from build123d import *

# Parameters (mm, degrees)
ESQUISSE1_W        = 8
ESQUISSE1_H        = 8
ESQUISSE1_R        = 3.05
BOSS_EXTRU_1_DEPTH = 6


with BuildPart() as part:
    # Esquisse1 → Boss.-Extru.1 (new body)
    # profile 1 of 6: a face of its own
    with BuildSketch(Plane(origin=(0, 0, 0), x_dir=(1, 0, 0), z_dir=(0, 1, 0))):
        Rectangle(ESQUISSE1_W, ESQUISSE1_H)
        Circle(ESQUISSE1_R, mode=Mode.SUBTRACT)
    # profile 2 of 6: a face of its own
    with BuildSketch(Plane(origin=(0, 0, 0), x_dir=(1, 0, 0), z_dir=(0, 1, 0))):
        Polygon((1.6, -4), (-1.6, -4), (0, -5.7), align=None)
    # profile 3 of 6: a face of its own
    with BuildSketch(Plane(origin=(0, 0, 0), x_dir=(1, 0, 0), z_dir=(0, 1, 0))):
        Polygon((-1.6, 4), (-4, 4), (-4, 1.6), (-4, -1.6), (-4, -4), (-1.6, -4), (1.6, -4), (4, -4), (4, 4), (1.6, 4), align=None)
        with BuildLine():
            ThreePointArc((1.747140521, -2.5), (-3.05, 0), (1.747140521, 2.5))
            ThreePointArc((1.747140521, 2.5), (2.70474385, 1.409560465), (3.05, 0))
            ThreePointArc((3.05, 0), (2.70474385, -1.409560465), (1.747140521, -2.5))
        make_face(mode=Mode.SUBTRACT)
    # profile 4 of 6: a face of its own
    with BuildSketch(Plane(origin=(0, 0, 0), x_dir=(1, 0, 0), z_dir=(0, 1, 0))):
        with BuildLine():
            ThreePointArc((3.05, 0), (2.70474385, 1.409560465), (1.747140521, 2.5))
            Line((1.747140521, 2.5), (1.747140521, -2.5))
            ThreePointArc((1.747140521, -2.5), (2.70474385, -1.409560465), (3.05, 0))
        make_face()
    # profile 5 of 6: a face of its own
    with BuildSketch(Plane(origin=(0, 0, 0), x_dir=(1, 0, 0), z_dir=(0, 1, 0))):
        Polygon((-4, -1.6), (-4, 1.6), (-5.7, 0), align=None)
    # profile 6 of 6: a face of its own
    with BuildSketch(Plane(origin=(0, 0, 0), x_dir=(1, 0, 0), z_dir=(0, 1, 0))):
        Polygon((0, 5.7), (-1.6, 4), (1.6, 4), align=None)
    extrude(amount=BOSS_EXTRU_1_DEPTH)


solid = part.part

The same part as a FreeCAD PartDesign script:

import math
import FreeCAD as App
import Part
import Sketcher
from FreeCAD import Vector

doc = App.newDocument("Part")
body = doc.addObject("PartDesign::Body", "Body")

# Sketch on XZ plane
sketch1 = doc.addObject("Sketcher::SketchObject", "Sketch")
body.addObject(sketch1)
sketch1.AttachmentSupport = (doc.XZ_Plane, [""])
sketch1.MapMode = "FlatFace"
sketch1.addGeometry(Part.LineSegment(Vector(-4, 1.6, 0), Vector(-4, 4, 0)), False)
sketch1.addGeometry(Part.LineSegment(Vector(-4, 4, 0), Vector(-1.6, 4, 0)), False)
sketch1.addGeometry(Part.LineSegment(Vector(-1.6, 4, 0), Vector(0, 5.7, 0)), False)
sketch1.addGeometry(Part.LineSegment(Vector(0, 5.7, 0), Vector(1.6, 4, 0)), False)
sketch1.addGeometry(Part.LineSegment(Vector(1.6, 4, 0), Vector(4, 4, 0)), False)
sketch1.addGeometry(Part.LineSegment(Vector(4, 4, 0), Vector(4, -4, 0)), False)
sketch1.addGeometry(Part.LineSegment(Vector(4, -4, 0), Vector(1.6, -4, 0)), False)
sketch1.addGeometry(Part.LineSegment(Vector(1.6, -4, 0), Vector(0, -5.7, 0)), False)
sketch1.addGeometry(Part.LineSegment(Vector(0, -5.7, 0), Vector(-1.6, -4, 0)), False)
sketch1.addGeometry(Part.LineSegment(Vector(-1.6, -4, 0), Vector(-4, -4, 0)), False)
sketch1.addGeometry(Part.LineSegment(Vector(-4, -4, 0), Vector(-4, -1.6, 0)), False)
sketch1.addGeometry(Part.LineSegment(Vector(-4, -1.6, 0), Vector(-5.7, 0, 0)), False)
sketch1.addGeometry(Part.LineSegment(Vector(-5.7, 0, 0), Vector(-4, 1.6, 0)), False)
sketch1.addGeometry(Part.ArcOfCircle(Part.Circle(Vector(0, 0, 0), Vector(0, 0, 1), 3), math.radians(55), math.radians(305)), False)
sketch1.addGeometry(Part.LineSegment(Vector(1.7, -2.5, 0), Vector(1.7, 2.5, 0)), False)
sketch1.addConstraint(Sketcher.Constraint("Coincident", 0, 2, 1, 1))
sketch1.addConstraint(Sketcher.Constraint("Coincident", 1, 2, 2, 1))
sketch1.addConstraint(Sketcher.Constraint("Coincident", 2, 2, 3, 1))
sketch1.addConstraint(Sketcher.Constraint("Coincident", 3, 2, 4, 1))
sketch1.addConstraint(Sketcher.Constraint("Coincident", 4, 2, 5, 1))
sketch1.addConstraint(Sketcher.Constraint("Coincident", 5, 2, 6, 1))
sketch1.addConstraint(Sketcher.Constraint("Coincident", 6, 2, 7, 1))
sketch1.addConstraint(Sketcher.Constraint("Coincident", 7, 2, 8, 1))
sketch1.addConstraint(Sketcher.Constraint("Coincident", 8, 2, 9, 1))
sketch1.addConstraint(Sketcher.Constraint("Coincident", 9, 2, 10, 1))
sketch1.addConstraint(Sketcher.Constraint("Coincident", 10, 2, 11, 1))
sketch1.addConstraint(Sketcher.Constraint("Coincident", 11, 2, 12, 1))
sketch1.addConstraint(Sketcher.Constraint("Coincident", 12, 2, 0, 1))
sketch1.addConstraint(Sketcher.Constraint("Coincident", 13, 1, 14, 2))
sketch1.addConstraint(Sketcher.Constraint("Coincident", 14, 1, 13, 2))
sketch1.addConstraint(Sketcher.Constraint("Vertical", 0))
sketch1.addConstraint(Sketcher.Constraint("Horizontal", 1))
sketch1.addConstraint(Sketcher.Constraint("Horizontal", 4))
sketch1.addConstraint(Sketcher.Constraint("Vertical", 5))
sketch1.addConstraint(Sketcher.Constraint("Horizontal", 6))
sketch1.addConstraint(Sketcher.Constraint("Horizontal", 9))
sketch1.addConstraint(Sketcher.Constraint("Vertical", 10))
sketch1.addConstraint(Sketcher.Constraint("Vertical", 14))
sketch1.addConstraint(Sketcher.Constraint("Coincident", 13, 3, -1, 1))
sketch1.addConstraint(Sketcher.Constraint("Symmetric", 0, 2, 5, 2, -1, 1))
sketch1.addConstraint(Sketcher.Constraint("Symmetric", 2, 2, 7, 2, -1, 1))
sketch1.addConstraint(Sketcher.Constraint("Symmetric", 3, 2, 8, 2, -1, 1))
sketch1.addConstraint(Sketcher.Constraint("Symmetric", 1, 2, 3, 2, -2))
sketch1.addConstraint(Sketcher.Constraint("Symmetric", 10, 2, 12, 2, -1))
sketch1.addConstraint(Sketcher.Constraint("PointOnObject", 2, 2, -2))
sketch1.addConstraint(Sketcher.Constraint("PointOnObject", 11, 2, -1))
sketch1.addConstraint(Sketcher.Constraint("Parallel", 2, 7))
sketch1.addConstraint(Sketcher.Constraint("Perpendicular", 7, 11))
sketch1.addConstraint(Sketcher.Constraint("Equal", 9, 0))
sketch1.addConstraint(Sketcher.Constraint("Equal", 8, 11))
sketch1.addConstraint(Sketcher.Constraint("DistanceY", 5, 2, 5, 1, 8.0))
sketch1.addConstraint(Sketcher.Constraint("DistanceY", 14, 1, 14, 2, 5.0))
sketch1.addConstraint(Sketcher.Constraint("Radius", 13, 3.05))
sketch1.addConstraint(Sketcher.Constraint("DistanceX", 1, 1, 1, 2, 2.4))
sketch1.addConstraint(Sketcher.Constraint("DistanceY", -1, 1, 2, 2, 5.7))
pad1 = doc.addObject("PartDesign::Pad", "Pad")
body.addObject(pad1)
pad1.Profile = sketch1
pad1.Length = 6
pad1.Reversed = True

doc.recompute()
